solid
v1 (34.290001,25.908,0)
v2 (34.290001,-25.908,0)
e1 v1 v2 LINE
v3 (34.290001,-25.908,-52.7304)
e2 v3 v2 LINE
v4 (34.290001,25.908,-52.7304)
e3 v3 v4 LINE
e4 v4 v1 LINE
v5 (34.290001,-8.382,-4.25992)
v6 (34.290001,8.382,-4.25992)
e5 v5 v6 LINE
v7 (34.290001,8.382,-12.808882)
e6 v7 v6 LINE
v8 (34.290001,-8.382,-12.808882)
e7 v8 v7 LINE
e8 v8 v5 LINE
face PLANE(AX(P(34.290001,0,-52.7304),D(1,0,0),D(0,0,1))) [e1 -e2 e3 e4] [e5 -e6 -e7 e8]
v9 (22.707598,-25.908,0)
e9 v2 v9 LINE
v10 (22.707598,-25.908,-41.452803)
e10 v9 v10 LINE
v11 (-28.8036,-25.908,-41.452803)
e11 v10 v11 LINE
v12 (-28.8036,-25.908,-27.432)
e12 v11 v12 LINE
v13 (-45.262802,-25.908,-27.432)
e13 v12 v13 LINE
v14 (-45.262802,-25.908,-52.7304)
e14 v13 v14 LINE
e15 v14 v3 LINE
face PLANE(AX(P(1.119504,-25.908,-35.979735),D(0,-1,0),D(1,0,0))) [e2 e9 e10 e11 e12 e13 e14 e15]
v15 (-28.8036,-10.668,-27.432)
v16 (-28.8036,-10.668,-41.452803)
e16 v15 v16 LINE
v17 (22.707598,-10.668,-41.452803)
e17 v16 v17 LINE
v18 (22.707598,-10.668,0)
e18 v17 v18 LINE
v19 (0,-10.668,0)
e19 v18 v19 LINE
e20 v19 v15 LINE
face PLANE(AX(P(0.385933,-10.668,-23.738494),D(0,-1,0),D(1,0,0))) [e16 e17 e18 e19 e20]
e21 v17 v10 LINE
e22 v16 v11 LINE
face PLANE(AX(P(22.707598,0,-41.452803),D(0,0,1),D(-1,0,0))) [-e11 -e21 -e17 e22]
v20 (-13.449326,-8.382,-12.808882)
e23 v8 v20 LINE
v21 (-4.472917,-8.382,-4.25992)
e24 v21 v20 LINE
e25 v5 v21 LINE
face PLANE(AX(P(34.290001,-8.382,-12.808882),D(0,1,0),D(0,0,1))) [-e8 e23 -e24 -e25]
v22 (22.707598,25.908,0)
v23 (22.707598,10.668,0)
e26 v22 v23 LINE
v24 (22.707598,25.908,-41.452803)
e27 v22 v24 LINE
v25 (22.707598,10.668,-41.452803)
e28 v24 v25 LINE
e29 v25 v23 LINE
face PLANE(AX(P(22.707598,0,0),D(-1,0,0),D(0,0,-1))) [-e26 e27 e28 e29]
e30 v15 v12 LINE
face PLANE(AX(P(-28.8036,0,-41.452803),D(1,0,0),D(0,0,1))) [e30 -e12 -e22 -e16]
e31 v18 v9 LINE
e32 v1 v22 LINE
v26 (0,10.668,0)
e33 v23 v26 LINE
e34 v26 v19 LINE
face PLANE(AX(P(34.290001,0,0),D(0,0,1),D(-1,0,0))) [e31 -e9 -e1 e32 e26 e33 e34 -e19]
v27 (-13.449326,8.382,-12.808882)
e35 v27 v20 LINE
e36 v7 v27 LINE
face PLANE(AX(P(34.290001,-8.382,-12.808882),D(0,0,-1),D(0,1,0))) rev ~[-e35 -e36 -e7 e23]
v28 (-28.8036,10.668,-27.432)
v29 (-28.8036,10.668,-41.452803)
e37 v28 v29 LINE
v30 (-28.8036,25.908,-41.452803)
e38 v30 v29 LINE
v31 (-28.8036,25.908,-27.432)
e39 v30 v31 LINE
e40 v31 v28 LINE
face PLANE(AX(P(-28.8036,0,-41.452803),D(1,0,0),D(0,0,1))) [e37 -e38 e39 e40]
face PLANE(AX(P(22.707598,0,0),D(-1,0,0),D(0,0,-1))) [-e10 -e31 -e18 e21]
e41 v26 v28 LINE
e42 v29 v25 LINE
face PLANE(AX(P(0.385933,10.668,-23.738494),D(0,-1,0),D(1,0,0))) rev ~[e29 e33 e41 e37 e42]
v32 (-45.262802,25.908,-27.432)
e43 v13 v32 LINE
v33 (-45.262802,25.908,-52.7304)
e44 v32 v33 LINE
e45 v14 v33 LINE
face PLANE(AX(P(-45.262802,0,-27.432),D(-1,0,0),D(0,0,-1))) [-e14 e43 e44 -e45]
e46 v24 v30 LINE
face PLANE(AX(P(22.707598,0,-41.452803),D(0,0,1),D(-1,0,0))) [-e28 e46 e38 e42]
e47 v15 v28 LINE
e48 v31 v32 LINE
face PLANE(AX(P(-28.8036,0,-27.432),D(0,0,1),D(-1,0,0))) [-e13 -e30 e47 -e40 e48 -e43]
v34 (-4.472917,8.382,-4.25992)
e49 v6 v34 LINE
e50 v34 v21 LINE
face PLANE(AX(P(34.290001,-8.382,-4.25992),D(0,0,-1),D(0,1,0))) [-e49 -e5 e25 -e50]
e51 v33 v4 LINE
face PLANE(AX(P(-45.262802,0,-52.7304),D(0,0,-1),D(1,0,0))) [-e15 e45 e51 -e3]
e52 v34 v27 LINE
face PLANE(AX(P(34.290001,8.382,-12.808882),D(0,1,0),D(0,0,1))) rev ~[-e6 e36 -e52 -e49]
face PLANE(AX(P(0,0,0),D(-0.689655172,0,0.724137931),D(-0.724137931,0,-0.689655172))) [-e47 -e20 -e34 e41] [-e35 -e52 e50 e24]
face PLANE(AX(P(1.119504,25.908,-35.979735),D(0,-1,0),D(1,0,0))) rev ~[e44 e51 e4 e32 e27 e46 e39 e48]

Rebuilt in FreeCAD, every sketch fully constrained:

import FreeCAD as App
import Part
import Sketcher
from FreeCAD import Vector
Q = App.Units.Quantity

doc = App.newDocument("Part")
params = doc.addObject("Spreadsheet::Sheet", "Params")
for row, (alias, value) in enumerate([
    ("sketch1_width", "0.4560001 in"),
    ("sketch1_width2", "2.0279999 in"),
    ("sketch1_width3", "0.6480001 in"),
    ("sketch1_height", "2.076 in"),
    ("sketch1_height2", "1.6320001 in"),
    ("pad1_length", "2.04 in"),
    ("sketch2_width", "0.8939999 in"),
    ("sketch2_width2", "2.0279999 in"),
    ("sketch2_height", "1.6320001 in"),
    ("sketch2_height2", "0.5520001 in"),
    ("pad2_length", "0.84 in"),
    ("sketch3_width", "0.66 in"),
    ("pocket1_length", "3.28 in"),
], start=1):
    params.set(f"A{row}", alias)
    params.set(f"B{row}", "=" + value)
    params.setAlias(f"B{row}", alias)

body = doc.addObject("PartDesign::Body", "Body")

# Sketch on XZ plane
sketch1 = body.newObject("Sketcher::SketchObject", "Sketch")
sketch1.AttachmentSupport = (doc.getObject("XZ_Plane"), [""])
sketch1.MapMode = "FlatFace"
sketch1.addGeometry(Part.LineSegment(Vector(34, -53, 0), Vector(34, 0, 0)), False)
sketch1.addGeometry(Part.LineSegment(Vector(34, 0, 0), Vector(23, 0, 0)), False)
sketch1.addGeometry(Part.LineSegment(Vector(23, 0, 0), Vector(23, -41, 0)), False)
sketch1.addGeometry(Part.LineSegment(Vector(23, -41, 0), Vector(-29, -41, 0)), False)
sketch1.addGeometry(Part.LineSegment(Vector(-29, -41, 0), Vector(-29, -27, 0)), False)
sketch1.addGeometry(Part.LineSegment(Vector(-29, -27, 0), Vector(-45, -27, 0)), False)
sketch1.addGeometry(Part.LineSegment(Vector(-45, -27, 0), Vector(-45, -53, 0)), False)
sketch1.addGeometry(Part.LineSegment(Vector(-45, -53, 0), Vector(34, -53, 0)), False)
sketch1.addConstraint(Sketcher.Constraint("Coincident", 0, 2, 1, 1))
sketch1.addConstraint(Sketcher.Constraint("Coincident", 1, 2, 2, 1))
sketch1.addConstraint(Sketcher.Constraint("Coincident", 2, 2, 3, 1))
sketch1.addConstraint(Sketcher.Constraint("Coincident", 3, 2, 4, 1))
sketch1.addConstraint(Sketcher.Constraint("Coincident", 4, 2, 5, 1))
sketch1.addConstraint(Sketcher.Constraint("Coincident", 5, 2, 6, 1))
sketch1.addConstraint(Sketcher.Constraint("Coincident", 6, 2, 7, 1))
sketch1.addConstraint(Sketcher.Constraint("Coincident", 7, 2, 0, 1))
sketch1.addConstraint(Sketcher.Constraint("Vertical", 0))
sketch1.addConstraint(Sketcher.Constraint("Horizontal", 1))
sketch1.addConstraint(Sketcher.Constraint("Vertical", 2))
sketch1.addConstraint(Sketcher.Constraint("Horizontal", 3))
sketch1.addConstraint(Sketcher.Constraint("Vertical", 4))
sketch1.addConstraint(Sketcher.Constraint("Horizontal", 5))
sketch1.addConstraint(Sketcher.Constraint("Vertical", 6))
sketch1.addConstraint(Sketcher.Constraint("Horizontal", 7))
sketch1.addConstraint(Sketcher.Constraint("PointOnObject", 0, 2, -1))
sketch1.addConstraint(Sketcher.Constraint("DistanceX", 1, 2, 1, 1, Q("0.4560001 in")))
sketch1.addConstraint(Sketcher.Constraint("DistanceX", 3, 2, 3, 1, Q("2.0279999 in")))
sketch1.addConstraint(Sketcher.Constraint("DistanceX", 5, 2, 5, 1, Q("0.6480001 in")))
sketch1.addConstraint(Sketcher.Constraint("DistanceY", 0, 1, 0, 2, Q("2.076 in")))
sketch1.addConstraint(Sketcher.Constraint("DistanceY", 2, 2, 2, 1, Q("1.6320001 in")))
sketch1.addConstraint(Sketcher.Constraint("DistanceY", 4, 1, 4, 2, Q("0.5520001 in")))
sketch1.addConstraint(Sketcher.Constraint("DistanceX", -1, 1, 0, 2, Q("1.35 in")))
sketch1.setExpression("Constraints[17]", "Params.sketch1_width")
sketch1.setExpression("Constraints[18]", "Params.sketch1_width2")
sketch1.setExpression("Constraints[19]", "Params.sketch1_width3")
sketch1.setExpression("Constraints[20]", "Params.sketch1_height")
sketch1.setExpression("Constraints[21]", "Params.sketch1_height2")
pad1 = body.newObject("PartDesign::Pad", "Pad")
pad1.Profile = sketch1
pad1.setExpression("Length", "Params.pad1_length")
pad1.Midplane = True

# Sketch on XZ plane
sketch2 = body.newObject("Sketcher::SketchObject", "Sketch001")
sketch2.AttachmentSupport = (doc.getObject("XZ_Plane"), [""])
sketch2.MapMode = "FlatFace"
sketch2.addGeometry(Part.LineSegment(Vector(23, -41, 0), Vector(23, 0, 0)), False)
sketch2.addGeometry(Part.LineSegment(Vector(23, 0, 0), Vector(0, 0, 0)), False)
sketch2.addGeometry(Part.LineSegment(Vector(0, 0, 0), Vector(-29, -27, 0)), False)
sketch2.addGeometry(Part.LineSegment(Vector(-29, -27, 0), Vector(-29, -41, 0)), False)
sketch2.addGeometry(Part.LineSegment(Vector(-29, -41, 0), Vector(23, -41, 0)), False)
sketch2.addConstraint(Sketcher.Constraint("Coincident", 0, 2, 1, 1))
sketch2.addConstraint(Sketcher.Constraint("Coincident", 1, 2, 2, 1))
sketch2.addConstraint(Sketcher.Constraint("Coincident", 2, 2, 3, 1))
sketch2.addConstraint(Sketcher.Constraint("Coincident", 3, 2, 4, 1))
sketch2.addConstraint(Sketcher.Constraint("Coincident", 4, 2, 0, 1))
sketch2.addConstraint(Sketcher.Constraint("Vertical", 0))
sketch2.addConstraint(Sketcher.Constraint("Horizontal", 1))
sketch2.addConstraint(Sketcher.Constraint("Vertical", 3))
sketch2.addConstraint(Sketcher.Constraint("Horizontal", 4))
sketch2.addConstraint(Sketcher.Constraint("Coincident", 1, 2, -1, 1))
sketch2.addConstraint(Sketcher.Constraint("DistanceX", 1, 2, 1, 1, Q("0.8939999 in")))
sketch2.addConstraint(Sketcher.Constraint("DistanceX", 4, 1, 4, 2, Q("2.0279999 in")))
sketch2.addConstraint(Sketcher.Constraint("DistanceY", 0, 1, 0, 2, Q("1.6320001 in")))
sketch2.addConstraint(Sketcher.Constraint("DistanceY", 3, 2, 3, 1, Q("0.5520001 in")))
sketch2.setExpression("Constraints[10]", "Params.sketch2_width")
sketch2.setExpression("Constraints[11]", "Params.sketch2_width2")
sketch2.setExpression("Constraints[12]", "Params.sketch2_height")
sketch2.setExpression("Constraints[13]", "Params.sketch2_height2")
pad2 = body.newObject("PartDesign::Pad", "Pad001")
pad2.Profile = sketch2
pad2.setExpression("Length", "Params.pad2_length")
pad2.Midplane = True

# Sketch on YZ plane
sketch3 = body.newObject("Sketcher::SketchObject", "Sketch002")
sketch3.AttachmentSupport = (doc.getObject("YZ_Plane"), [""])
sketch3.MapMode = "FlatFace"
sketch3.AttachmentOffset = App.Placement(Vector(0, 0, 1.35 * 25.4), App.Rotation())
sketch3.addGeometry(Part.LineSegment(Vector(-8, -4, 0), Vector(-8, -13, 0)), False)
sketch3.addGeometry(Part.LineSegment(Vector(-8, -13, 0), Vector(8, -13, 0)), False)
sketch3.addGeometry(Part.LineSegment(Vector(8, -13, 0), Vector(8, -4, 0)), False)
sketch3.addGeometry(Part.LineSegment(Vector(8, -4, 0), Vector(-8, -4, 0)), False)
sketch3.addConstraint(Sketcher.Constraint("Coincident", 0, 2, 1, 1))
sketch3.addConstraint(Sketcher.Constraint("Coincident", 1, 2, 2, 1))
sketch3.addConstraint(Sketcher.Constraint("Coincident", 2, 2, 3, 1))
sketch3.addConstraint(Sketcher.Constraint("Coincident", 3, 2, 0, 1))
sketch3.addConstraint(Sketcher.Constraint("Vertical", 0))
sketch3.addConstraint(Sketcher.Constraint("Horizontal", 1))
sketch3.addConstraint(Sketcher.Constraint("Vertical", 2))
sketch3.addConstraint(Sketcher.Constraint("Horizontal", 3))
sketch3.addConstraint(Sketcher.Constraint("DistanceX", 1, 1, 1, 2, Q("0.66 in")))
sketch3.addConstraint(Sketcher.Constraint("DistanceX", 0, 2, -1, 1, Q("0.33 in")))
sketch3.addConstraint(Sketcher.Constraint("DistanceY", 0, 2, 0, 1, 8.548961))
sketch3.addConstraint(Sketcher.Constraint("DistanceY", 0, 2, -1, 1, 12.808882))
sketch3.setExpression("Constraints[8]", "Params.sketch3_width")
pocket1 = body.newObject("PartDesign::Pocket", "Pocket")
pocket1.Profile = sketch3
pocket1.setExpression("Length", "Params.pocket1_length")

doc.recompute()
